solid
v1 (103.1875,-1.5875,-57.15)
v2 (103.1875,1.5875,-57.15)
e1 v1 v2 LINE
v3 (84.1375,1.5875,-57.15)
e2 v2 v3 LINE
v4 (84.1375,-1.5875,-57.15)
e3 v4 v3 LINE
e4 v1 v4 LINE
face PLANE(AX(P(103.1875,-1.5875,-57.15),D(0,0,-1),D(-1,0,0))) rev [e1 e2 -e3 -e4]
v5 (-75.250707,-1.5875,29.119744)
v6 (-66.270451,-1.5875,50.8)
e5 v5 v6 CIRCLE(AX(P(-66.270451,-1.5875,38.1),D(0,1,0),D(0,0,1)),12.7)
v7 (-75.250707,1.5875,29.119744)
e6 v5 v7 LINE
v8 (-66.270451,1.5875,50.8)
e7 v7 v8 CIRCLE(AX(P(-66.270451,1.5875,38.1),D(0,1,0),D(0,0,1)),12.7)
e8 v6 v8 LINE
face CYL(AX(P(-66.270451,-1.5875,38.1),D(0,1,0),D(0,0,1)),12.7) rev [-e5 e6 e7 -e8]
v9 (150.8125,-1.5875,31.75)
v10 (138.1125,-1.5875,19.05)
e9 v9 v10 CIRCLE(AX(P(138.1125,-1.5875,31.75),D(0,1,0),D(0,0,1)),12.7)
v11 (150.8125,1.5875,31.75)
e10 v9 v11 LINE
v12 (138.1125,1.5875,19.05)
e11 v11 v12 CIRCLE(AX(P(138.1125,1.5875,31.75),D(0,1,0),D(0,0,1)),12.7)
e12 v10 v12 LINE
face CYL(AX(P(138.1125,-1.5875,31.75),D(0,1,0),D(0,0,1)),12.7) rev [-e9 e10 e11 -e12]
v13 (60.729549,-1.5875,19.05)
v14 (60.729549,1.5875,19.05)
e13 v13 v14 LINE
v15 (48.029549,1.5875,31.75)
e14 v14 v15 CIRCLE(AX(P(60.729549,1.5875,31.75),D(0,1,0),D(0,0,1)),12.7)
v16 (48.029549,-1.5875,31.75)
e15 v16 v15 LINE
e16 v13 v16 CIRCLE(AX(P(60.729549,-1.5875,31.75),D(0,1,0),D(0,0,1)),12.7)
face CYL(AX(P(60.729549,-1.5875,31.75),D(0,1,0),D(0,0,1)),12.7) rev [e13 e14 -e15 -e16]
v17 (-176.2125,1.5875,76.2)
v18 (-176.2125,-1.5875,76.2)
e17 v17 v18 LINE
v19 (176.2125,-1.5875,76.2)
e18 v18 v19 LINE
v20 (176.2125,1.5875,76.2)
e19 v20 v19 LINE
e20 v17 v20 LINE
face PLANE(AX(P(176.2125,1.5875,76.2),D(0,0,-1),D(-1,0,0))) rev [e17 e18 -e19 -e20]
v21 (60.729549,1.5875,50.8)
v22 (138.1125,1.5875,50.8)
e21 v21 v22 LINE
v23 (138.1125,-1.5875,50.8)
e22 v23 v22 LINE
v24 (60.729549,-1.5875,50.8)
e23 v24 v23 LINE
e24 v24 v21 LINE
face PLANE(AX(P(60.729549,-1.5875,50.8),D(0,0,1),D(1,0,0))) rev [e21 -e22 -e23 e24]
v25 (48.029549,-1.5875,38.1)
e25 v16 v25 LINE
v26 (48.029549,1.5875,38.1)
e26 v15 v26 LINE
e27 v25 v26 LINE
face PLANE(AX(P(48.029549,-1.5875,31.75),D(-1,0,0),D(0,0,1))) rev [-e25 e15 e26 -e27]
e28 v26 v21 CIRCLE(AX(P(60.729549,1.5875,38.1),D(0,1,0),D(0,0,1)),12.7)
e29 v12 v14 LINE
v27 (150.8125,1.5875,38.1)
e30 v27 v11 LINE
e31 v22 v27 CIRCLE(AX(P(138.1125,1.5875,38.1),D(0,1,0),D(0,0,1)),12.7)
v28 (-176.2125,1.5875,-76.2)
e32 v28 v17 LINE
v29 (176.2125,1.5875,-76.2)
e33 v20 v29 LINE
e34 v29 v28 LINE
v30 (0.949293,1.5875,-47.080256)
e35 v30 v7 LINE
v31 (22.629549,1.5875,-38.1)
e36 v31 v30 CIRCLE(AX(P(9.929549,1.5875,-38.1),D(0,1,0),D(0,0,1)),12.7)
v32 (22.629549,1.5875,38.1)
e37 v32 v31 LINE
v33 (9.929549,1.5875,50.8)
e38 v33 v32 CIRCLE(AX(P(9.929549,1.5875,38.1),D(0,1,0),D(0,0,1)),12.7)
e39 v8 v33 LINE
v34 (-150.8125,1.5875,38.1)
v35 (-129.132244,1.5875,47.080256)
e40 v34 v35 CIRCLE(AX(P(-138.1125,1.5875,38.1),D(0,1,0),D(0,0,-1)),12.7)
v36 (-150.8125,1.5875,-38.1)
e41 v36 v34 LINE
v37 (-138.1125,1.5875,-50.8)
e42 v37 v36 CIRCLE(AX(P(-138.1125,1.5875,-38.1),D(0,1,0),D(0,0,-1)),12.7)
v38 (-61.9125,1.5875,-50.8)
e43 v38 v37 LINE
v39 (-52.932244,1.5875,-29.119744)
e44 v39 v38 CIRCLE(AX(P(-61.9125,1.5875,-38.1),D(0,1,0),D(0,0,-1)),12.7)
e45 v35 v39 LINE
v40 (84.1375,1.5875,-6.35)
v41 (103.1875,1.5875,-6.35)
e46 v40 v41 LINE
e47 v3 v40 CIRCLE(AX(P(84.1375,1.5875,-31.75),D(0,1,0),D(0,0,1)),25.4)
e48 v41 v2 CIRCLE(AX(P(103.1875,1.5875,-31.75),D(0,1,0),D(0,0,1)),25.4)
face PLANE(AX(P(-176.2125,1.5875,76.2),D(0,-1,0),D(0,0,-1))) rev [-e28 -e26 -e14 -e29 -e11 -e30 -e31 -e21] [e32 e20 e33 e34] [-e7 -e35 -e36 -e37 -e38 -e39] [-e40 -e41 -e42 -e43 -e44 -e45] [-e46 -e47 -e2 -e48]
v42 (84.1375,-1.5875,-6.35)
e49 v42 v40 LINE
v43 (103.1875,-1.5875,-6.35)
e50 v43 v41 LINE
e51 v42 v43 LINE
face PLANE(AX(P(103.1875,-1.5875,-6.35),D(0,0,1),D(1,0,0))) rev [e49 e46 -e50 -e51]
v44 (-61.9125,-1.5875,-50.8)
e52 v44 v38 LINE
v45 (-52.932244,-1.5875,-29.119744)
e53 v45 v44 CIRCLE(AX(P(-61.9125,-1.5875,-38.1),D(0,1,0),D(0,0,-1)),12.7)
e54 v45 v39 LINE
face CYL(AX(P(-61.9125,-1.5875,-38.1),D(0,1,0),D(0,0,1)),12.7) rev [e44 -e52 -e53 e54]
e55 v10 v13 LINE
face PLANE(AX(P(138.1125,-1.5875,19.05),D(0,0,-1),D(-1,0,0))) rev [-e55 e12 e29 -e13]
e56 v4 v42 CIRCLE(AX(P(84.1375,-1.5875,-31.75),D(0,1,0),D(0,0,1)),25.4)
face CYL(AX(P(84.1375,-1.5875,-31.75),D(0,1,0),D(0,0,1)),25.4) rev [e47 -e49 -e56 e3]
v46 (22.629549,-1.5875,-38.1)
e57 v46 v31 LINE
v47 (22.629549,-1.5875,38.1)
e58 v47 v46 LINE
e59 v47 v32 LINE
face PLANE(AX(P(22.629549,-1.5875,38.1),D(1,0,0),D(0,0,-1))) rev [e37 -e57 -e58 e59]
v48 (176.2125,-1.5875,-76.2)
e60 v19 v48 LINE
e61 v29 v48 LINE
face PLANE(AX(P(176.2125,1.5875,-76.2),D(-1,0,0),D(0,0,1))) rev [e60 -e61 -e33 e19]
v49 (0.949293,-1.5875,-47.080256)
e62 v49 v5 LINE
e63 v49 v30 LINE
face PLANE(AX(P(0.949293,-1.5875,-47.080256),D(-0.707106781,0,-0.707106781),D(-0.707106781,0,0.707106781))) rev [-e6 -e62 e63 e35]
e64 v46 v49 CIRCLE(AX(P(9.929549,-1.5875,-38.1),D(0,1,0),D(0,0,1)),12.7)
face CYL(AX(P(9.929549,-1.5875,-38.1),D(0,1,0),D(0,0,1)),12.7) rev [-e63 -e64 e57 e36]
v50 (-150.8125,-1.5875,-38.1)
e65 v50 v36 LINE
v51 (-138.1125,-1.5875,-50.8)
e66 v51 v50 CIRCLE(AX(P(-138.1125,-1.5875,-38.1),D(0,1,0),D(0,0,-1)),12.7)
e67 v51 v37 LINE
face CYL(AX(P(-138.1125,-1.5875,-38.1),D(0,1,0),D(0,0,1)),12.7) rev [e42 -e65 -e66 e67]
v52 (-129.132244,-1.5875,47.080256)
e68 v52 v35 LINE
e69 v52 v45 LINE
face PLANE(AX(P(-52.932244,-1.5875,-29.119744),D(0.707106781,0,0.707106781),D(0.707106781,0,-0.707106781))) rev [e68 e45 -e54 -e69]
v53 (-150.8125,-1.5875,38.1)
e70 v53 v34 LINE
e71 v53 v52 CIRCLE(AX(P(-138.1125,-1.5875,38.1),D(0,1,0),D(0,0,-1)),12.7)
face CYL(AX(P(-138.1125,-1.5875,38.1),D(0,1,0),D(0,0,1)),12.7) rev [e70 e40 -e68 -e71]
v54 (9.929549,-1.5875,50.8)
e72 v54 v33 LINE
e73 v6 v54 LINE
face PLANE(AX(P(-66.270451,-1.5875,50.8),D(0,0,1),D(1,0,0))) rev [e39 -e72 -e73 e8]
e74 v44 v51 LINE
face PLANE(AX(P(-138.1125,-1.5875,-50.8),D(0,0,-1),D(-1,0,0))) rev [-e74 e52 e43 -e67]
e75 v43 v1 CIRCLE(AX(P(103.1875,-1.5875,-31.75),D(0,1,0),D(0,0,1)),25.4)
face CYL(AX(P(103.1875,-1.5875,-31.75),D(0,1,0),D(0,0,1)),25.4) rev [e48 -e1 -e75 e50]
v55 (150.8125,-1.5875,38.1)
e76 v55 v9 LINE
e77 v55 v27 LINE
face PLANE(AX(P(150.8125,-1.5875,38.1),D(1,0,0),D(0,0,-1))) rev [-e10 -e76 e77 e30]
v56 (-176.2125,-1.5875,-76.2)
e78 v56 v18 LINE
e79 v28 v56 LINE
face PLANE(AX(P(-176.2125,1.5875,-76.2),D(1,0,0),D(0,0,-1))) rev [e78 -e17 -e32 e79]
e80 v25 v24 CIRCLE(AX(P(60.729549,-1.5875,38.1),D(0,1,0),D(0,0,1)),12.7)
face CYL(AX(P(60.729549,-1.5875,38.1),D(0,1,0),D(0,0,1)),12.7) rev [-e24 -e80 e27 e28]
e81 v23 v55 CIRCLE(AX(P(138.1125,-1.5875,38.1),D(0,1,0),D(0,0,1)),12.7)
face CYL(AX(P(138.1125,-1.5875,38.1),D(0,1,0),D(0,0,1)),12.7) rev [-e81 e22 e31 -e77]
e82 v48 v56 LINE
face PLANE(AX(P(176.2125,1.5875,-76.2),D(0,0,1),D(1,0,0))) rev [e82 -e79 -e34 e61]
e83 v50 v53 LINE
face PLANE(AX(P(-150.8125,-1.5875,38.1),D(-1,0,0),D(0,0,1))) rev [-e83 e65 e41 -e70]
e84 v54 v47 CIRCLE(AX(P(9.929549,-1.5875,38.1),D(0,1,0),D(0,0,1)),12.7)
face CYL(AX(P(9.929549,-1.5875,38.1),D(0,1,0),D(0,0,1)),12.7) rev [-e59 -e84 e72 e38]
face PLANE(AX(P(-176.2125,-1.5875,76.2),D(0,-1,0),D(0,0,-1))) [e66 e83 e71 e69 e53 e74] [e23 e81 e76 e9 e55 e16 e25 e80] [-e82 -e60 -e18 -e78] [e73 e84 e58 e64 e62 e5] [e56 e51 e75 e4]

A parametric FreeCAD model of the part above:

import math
import FreeCAD as App
import Part
import Sketcher
from FreeCAD import Vector
Q = App.Units.Quantity


def add_polygon(sketch, points):
    """Adds a closed chain of lines whose ends are joined by coincident constraints."""
    first, n = sketch.GeometryCount, len(points)
    for a, b in zip(points, points[1:] + points[:1]):
        sketch.addGeometry(Part.LineSegment(App.Vector(*a, 0), App.Vector(*b, 0)), False)
    for i in range(n):
        sketch.addConstraint(Sketcher.Constraint("Coincident", first + i, 2, first + (i + 1) % n, 1))

doc = App.newDocument("Part")
body = doc.addObject("PartDesign::Body", "Body")

# Sketch on XZ plane
sketch1 = body.newObject("Sketcher::SketchObject", "Sketch")
sketch1.AttachmentSupport = (doc.getObject("XZ_Plane"), [""])
sketch1.MapMode = "FlatFace"
add_polygon(sketch1, [(-176, -76), (-176, 76), (176, 76), (176, -76)])  # lines 0-3
sketch1.addConstraint([
    Sketcher.Constraint("Vertical", 0),
    Sketcher.Constraint("Horizontal", 1),
    Sketcher.Constraint("Vertical", 2),
    Sketcher.Constraint("Horizontal", 3),
    Sketcher.Constraint("Symmetric", 0, 2, 2, 2, -1, 1),
    Sketcher.Constraint("DistanceY", 0, 1, 0, 2, Q("6 in")),
    Sketcher.Constraint("DistanceX", 1, 1, 1, 2, Q("13.875 in")),
])
pad1 = body.newObject("PartDesign::Pad", "Pad")
pad1.Profile = sketch1
pad1.Length = Q("0.125 in")
pad1.Midplane = True

# Sketch on XZ plane
sketch2 = body.newObject("Sketcher::SketchObject", "Sketch001")
sketch2.AttachmentSupport = (doc.getObject("XZ_Plane"), [""])
sketch2.MapMode = "FlatFace"
sketch2.AttachmentOffset = App.Placement(Vector(0, 0, -0.0625 * 25.4), App.Rotation())
sketch2.addGeometry([
    Part.LineSegment(Vector(84, -6, 0), Vector(103, -6, 0)),  # 0
    Part.ArcOfCircle(Part.Circle(Vector(103, -32, 0), Vector(0, 0, 1), 25), math.radians(-90), math.radians(90)),  # 1
    Part.LineSegment(Vector(103, -57, 0), Vector(84, -57, 0)),  # 2
    Part.ArcOfCircle(Part.Circle(Vector(84, -32, 0), Vector(0, 0, 1), 25), math.radians(90), math.radians(270)),  # 3
    Part.LineSegment(Vector(-62, -51, 0), Vector(-138, -51, 0)),  # 4
    Part.ArcOfCircle(Part.Circle(Vector(-138, -38, 0), Vector(0, 0, 1), 13), math.radians(180), math.radians(270)),  # 5
    Part.LineSegment(Vector(-151, -38, 0), Vector(-151, 38, 0)),  # 6
    Part.ArcOfCircle(Part.Circle(Vector(-138, 38, 0), Vector(0, 0, 1), 13), math.radians(45), math.radians(180)),  # 7
    Part.LineSegment(Vector(-129, 47, 0), Vector(-53, -29, 0)),  # 8
    Part.ArcOfCircle(Part.Circle(Vector(-62, -38, 0), Vector(0, 0, 1), 13), math.radians(-90), math.radians(45)),  # 9
    Part.LineSegment(Vector(-66, 51, 0), Vector(10, 51, 0)),  # 10
    Part.ArcOfCircle(Part.Circle(Vector(10, 38, 0), Vector(0, 0, 1), 13), math.radians(0), math.radians(90)),  # 11
    Part.LineSegment(Vector(23, 38, 0), Vector(23, -38, 0)),  # 12
    Part.ArcOfCircle(Part.Circle(Vector(10, -38, 0), Vector(0, 0, 1), 13), math.radians(-135), math.radians(0)),  # 13
    Part.LineSegment(Vector(1, -47, 0), Vector(-75, 29, 0)),  # 14
    Part.ArcOfCircle(Part.Circle(Vector(-66, 38, 0), Vector(0, 0, 1), 13), math.radians(90), math.radians(225)),  # 15
    Part.LineSegment(Vector(61, 51, 0), Vector(138, 51, 0)),  # 16
    Part.ArcOfCircle(Part.Circle(Vector(138, 38, 0), Vector(0, 0, 1), 13), math.radians(0), math.radians(90)),  # 17
    Part.LineSegment(Vector(151, 38, 0), Vector(151, 32, 0)),  # 18
    Part.ArcOfCircle(Part.Circle(Vector(138, 32, 0), Vector(0, 0, 1), 13), math.radians(-90), math.radians(0)),  # 19
    Part.LineSegment(Vector(138, 19, 0), Vector(61, 19, 0)),  # 20
    Part.ArcOfCircle(Part.Circle(Vector(61, 32, 0), Vector(0, 0, 1), 13), math.radians(180), math.radians(270)),  # 21
    Part.LineSegment(Vector(48, 32, 0), Vector(48, 38, 0)),  # 22
    Part.ArcOfCircle(Part.Circle(Vector(61, 38, 0), Vector(0, 0, 1), 13), math.radians(90), math.radians(180)),  # 23
], False)
sketch2.addConstraint([
    Sketcher.Constraint("Tangent", 0, 2, 1, 2),
    Sketcher.Constraint("Tangent", 1, 1, 2, 1),
    Sketcher.Constraint("Tangent", 2, 2, 3, 2),
    Sketcher.Constraint("Tangent", 3, 1, 0, 1),
    Sketcher.Constraint("Tangent", 4, 2, 5, 2),
    Sketcher.Constraint("Tangent", 5, 1, 6, 1),
    Sketcher.Constraint("Tangent", 6, 2, 7, 2),
    Sketcher.Constraint("Tangent", 7, 1, 8, 1),
    Sketcher.Constraint("Tangent", 8, 2, 9, 2),
    Sketcher.Constraint("Tangent", 9, 1, 4, 1),
    Sketcher.Constraint("Tangent", 10, 2, 11, 2),
    Sketcher.Constraint("Tangent", 11, 1, 12, 1),
    Sketcher.Constraint("Tangent", 12, 2, 13, 2),
    Sketcher.Constraint("Tangent", 13, 1, 14, 1),
    Sketcher.Constraint("Tangent", 14, 2, 15, 2),
    Sketcher.Constraint("Tangent", 15, 1, 10, 1),
    Sketcher.Constraint("Tangent", 16, 2, 17, 2),
    Sketcher.Constraint("Tangent", 17, 1, 18, 1),
    Sketcher.Constraint("Tangent", 18, 2, 19, 2),
    Sketcher.Constraint("Tangent", 19, 1, 20, 1),
    Sketcher.Constraint("Tangent", 20, 2, 21, 2),
    Sketcher.Constraint("Tangent", 21, 1, 22, 1),
    Sketcher.Constraint("Tangent", 22, 2, 23, 2),
    Sketcher.Constraint("Tangent", 23, 1, 16, 1),
    Sketcher.Constraint("Horizontal", 0),
    Sketcher.Constraint("Horizontal", 2),
    Sketcher.Constraint("Horizontal", 4),
    Sketcher.Constraint("Vertical", 6),
    Sketcher.Constraint("Horizontal", 10),
    Sketcher.Constraint("Vertical", 12),
    Sketcher.Constraint("Horizontal", 16),
    Sketcher.Constraint("Vertical", 18),
    Sketcher.Constraint("Horizontal", 20),
    Sketcher.Constraint("Vertical", 22),
    Sketcher.Constraint("Equal", 5, 7),
    Sketcher.Constraint("Equal", 7, 9),
    Sketcher.Constraint("Equal", 9, 11),
    Sketcher.Constraint("Equal", 11, 13),
    Sketcher.Constraint("Equal", 13, 15),
    Sketcher.Constraint("Equal", 15, 17),
    Sketcher.Constraint("Equal", 17, 19),
    Sketcher.Constraint("Equal", 19, 21),
    Sketcher.Constraint("Equal", 21, 23),
    Sketcher.Constraint("Symmetric", 5, 3, 17, 3, -1, 1),
    Sketcher.Constraint("Parallel", 8, 14),
    Sketcher.Constraint("Horizontal", 7, 3, 11, 3),
    Sketcher.Constraint("Horizontal", 9, 3, 13, 3),
    Sketcher.Constraint("Horizontal", 15, 3, 17, 3),
    Sketcher.Constraint("Equal", 10, 6),
    Sketcher.Constraint("Radius", 1, Q("1 in")),
    Sketcher.Constraint("Radius", 5, Q("0.5 in")),
    Sketcher.Constraint("DistanceX", 4, 2, 4, 1, Q("3 in")),
    Sketcher.Constraint("DistanceX", 11, 3, 21, 3, Q("2 in")),
    Sketcher.Constraint("DistanceY", 3, 1, 20, 2, Q("1 in")),
    Sketcher.Constraint("DistanceX", 0, 1, 0, 2, Q("0.75 in")),
    Sketcher.Constraint("DistanceY", 18, 2, 18, 1, Q("0.25 in")),
    Sketcher.Constraint("DistanceX", 5, 3, 1, 3, Q("9.5 in")),
    Sketcher.Constraint("DistanceX", -1, 1, 1, 3, Q("4.0625 in")),
    Sketcher.Constraint("DistanceX", 16, 1, 16, 2, 77.382951),
])
pocket1 = body.newObject("PartDesign::Pocket", "Pocket")
pocket1.Profile = sketch2
pocket1.Type = "ThroughAll"
pocket1.Reversed = True

doc.recompute()
